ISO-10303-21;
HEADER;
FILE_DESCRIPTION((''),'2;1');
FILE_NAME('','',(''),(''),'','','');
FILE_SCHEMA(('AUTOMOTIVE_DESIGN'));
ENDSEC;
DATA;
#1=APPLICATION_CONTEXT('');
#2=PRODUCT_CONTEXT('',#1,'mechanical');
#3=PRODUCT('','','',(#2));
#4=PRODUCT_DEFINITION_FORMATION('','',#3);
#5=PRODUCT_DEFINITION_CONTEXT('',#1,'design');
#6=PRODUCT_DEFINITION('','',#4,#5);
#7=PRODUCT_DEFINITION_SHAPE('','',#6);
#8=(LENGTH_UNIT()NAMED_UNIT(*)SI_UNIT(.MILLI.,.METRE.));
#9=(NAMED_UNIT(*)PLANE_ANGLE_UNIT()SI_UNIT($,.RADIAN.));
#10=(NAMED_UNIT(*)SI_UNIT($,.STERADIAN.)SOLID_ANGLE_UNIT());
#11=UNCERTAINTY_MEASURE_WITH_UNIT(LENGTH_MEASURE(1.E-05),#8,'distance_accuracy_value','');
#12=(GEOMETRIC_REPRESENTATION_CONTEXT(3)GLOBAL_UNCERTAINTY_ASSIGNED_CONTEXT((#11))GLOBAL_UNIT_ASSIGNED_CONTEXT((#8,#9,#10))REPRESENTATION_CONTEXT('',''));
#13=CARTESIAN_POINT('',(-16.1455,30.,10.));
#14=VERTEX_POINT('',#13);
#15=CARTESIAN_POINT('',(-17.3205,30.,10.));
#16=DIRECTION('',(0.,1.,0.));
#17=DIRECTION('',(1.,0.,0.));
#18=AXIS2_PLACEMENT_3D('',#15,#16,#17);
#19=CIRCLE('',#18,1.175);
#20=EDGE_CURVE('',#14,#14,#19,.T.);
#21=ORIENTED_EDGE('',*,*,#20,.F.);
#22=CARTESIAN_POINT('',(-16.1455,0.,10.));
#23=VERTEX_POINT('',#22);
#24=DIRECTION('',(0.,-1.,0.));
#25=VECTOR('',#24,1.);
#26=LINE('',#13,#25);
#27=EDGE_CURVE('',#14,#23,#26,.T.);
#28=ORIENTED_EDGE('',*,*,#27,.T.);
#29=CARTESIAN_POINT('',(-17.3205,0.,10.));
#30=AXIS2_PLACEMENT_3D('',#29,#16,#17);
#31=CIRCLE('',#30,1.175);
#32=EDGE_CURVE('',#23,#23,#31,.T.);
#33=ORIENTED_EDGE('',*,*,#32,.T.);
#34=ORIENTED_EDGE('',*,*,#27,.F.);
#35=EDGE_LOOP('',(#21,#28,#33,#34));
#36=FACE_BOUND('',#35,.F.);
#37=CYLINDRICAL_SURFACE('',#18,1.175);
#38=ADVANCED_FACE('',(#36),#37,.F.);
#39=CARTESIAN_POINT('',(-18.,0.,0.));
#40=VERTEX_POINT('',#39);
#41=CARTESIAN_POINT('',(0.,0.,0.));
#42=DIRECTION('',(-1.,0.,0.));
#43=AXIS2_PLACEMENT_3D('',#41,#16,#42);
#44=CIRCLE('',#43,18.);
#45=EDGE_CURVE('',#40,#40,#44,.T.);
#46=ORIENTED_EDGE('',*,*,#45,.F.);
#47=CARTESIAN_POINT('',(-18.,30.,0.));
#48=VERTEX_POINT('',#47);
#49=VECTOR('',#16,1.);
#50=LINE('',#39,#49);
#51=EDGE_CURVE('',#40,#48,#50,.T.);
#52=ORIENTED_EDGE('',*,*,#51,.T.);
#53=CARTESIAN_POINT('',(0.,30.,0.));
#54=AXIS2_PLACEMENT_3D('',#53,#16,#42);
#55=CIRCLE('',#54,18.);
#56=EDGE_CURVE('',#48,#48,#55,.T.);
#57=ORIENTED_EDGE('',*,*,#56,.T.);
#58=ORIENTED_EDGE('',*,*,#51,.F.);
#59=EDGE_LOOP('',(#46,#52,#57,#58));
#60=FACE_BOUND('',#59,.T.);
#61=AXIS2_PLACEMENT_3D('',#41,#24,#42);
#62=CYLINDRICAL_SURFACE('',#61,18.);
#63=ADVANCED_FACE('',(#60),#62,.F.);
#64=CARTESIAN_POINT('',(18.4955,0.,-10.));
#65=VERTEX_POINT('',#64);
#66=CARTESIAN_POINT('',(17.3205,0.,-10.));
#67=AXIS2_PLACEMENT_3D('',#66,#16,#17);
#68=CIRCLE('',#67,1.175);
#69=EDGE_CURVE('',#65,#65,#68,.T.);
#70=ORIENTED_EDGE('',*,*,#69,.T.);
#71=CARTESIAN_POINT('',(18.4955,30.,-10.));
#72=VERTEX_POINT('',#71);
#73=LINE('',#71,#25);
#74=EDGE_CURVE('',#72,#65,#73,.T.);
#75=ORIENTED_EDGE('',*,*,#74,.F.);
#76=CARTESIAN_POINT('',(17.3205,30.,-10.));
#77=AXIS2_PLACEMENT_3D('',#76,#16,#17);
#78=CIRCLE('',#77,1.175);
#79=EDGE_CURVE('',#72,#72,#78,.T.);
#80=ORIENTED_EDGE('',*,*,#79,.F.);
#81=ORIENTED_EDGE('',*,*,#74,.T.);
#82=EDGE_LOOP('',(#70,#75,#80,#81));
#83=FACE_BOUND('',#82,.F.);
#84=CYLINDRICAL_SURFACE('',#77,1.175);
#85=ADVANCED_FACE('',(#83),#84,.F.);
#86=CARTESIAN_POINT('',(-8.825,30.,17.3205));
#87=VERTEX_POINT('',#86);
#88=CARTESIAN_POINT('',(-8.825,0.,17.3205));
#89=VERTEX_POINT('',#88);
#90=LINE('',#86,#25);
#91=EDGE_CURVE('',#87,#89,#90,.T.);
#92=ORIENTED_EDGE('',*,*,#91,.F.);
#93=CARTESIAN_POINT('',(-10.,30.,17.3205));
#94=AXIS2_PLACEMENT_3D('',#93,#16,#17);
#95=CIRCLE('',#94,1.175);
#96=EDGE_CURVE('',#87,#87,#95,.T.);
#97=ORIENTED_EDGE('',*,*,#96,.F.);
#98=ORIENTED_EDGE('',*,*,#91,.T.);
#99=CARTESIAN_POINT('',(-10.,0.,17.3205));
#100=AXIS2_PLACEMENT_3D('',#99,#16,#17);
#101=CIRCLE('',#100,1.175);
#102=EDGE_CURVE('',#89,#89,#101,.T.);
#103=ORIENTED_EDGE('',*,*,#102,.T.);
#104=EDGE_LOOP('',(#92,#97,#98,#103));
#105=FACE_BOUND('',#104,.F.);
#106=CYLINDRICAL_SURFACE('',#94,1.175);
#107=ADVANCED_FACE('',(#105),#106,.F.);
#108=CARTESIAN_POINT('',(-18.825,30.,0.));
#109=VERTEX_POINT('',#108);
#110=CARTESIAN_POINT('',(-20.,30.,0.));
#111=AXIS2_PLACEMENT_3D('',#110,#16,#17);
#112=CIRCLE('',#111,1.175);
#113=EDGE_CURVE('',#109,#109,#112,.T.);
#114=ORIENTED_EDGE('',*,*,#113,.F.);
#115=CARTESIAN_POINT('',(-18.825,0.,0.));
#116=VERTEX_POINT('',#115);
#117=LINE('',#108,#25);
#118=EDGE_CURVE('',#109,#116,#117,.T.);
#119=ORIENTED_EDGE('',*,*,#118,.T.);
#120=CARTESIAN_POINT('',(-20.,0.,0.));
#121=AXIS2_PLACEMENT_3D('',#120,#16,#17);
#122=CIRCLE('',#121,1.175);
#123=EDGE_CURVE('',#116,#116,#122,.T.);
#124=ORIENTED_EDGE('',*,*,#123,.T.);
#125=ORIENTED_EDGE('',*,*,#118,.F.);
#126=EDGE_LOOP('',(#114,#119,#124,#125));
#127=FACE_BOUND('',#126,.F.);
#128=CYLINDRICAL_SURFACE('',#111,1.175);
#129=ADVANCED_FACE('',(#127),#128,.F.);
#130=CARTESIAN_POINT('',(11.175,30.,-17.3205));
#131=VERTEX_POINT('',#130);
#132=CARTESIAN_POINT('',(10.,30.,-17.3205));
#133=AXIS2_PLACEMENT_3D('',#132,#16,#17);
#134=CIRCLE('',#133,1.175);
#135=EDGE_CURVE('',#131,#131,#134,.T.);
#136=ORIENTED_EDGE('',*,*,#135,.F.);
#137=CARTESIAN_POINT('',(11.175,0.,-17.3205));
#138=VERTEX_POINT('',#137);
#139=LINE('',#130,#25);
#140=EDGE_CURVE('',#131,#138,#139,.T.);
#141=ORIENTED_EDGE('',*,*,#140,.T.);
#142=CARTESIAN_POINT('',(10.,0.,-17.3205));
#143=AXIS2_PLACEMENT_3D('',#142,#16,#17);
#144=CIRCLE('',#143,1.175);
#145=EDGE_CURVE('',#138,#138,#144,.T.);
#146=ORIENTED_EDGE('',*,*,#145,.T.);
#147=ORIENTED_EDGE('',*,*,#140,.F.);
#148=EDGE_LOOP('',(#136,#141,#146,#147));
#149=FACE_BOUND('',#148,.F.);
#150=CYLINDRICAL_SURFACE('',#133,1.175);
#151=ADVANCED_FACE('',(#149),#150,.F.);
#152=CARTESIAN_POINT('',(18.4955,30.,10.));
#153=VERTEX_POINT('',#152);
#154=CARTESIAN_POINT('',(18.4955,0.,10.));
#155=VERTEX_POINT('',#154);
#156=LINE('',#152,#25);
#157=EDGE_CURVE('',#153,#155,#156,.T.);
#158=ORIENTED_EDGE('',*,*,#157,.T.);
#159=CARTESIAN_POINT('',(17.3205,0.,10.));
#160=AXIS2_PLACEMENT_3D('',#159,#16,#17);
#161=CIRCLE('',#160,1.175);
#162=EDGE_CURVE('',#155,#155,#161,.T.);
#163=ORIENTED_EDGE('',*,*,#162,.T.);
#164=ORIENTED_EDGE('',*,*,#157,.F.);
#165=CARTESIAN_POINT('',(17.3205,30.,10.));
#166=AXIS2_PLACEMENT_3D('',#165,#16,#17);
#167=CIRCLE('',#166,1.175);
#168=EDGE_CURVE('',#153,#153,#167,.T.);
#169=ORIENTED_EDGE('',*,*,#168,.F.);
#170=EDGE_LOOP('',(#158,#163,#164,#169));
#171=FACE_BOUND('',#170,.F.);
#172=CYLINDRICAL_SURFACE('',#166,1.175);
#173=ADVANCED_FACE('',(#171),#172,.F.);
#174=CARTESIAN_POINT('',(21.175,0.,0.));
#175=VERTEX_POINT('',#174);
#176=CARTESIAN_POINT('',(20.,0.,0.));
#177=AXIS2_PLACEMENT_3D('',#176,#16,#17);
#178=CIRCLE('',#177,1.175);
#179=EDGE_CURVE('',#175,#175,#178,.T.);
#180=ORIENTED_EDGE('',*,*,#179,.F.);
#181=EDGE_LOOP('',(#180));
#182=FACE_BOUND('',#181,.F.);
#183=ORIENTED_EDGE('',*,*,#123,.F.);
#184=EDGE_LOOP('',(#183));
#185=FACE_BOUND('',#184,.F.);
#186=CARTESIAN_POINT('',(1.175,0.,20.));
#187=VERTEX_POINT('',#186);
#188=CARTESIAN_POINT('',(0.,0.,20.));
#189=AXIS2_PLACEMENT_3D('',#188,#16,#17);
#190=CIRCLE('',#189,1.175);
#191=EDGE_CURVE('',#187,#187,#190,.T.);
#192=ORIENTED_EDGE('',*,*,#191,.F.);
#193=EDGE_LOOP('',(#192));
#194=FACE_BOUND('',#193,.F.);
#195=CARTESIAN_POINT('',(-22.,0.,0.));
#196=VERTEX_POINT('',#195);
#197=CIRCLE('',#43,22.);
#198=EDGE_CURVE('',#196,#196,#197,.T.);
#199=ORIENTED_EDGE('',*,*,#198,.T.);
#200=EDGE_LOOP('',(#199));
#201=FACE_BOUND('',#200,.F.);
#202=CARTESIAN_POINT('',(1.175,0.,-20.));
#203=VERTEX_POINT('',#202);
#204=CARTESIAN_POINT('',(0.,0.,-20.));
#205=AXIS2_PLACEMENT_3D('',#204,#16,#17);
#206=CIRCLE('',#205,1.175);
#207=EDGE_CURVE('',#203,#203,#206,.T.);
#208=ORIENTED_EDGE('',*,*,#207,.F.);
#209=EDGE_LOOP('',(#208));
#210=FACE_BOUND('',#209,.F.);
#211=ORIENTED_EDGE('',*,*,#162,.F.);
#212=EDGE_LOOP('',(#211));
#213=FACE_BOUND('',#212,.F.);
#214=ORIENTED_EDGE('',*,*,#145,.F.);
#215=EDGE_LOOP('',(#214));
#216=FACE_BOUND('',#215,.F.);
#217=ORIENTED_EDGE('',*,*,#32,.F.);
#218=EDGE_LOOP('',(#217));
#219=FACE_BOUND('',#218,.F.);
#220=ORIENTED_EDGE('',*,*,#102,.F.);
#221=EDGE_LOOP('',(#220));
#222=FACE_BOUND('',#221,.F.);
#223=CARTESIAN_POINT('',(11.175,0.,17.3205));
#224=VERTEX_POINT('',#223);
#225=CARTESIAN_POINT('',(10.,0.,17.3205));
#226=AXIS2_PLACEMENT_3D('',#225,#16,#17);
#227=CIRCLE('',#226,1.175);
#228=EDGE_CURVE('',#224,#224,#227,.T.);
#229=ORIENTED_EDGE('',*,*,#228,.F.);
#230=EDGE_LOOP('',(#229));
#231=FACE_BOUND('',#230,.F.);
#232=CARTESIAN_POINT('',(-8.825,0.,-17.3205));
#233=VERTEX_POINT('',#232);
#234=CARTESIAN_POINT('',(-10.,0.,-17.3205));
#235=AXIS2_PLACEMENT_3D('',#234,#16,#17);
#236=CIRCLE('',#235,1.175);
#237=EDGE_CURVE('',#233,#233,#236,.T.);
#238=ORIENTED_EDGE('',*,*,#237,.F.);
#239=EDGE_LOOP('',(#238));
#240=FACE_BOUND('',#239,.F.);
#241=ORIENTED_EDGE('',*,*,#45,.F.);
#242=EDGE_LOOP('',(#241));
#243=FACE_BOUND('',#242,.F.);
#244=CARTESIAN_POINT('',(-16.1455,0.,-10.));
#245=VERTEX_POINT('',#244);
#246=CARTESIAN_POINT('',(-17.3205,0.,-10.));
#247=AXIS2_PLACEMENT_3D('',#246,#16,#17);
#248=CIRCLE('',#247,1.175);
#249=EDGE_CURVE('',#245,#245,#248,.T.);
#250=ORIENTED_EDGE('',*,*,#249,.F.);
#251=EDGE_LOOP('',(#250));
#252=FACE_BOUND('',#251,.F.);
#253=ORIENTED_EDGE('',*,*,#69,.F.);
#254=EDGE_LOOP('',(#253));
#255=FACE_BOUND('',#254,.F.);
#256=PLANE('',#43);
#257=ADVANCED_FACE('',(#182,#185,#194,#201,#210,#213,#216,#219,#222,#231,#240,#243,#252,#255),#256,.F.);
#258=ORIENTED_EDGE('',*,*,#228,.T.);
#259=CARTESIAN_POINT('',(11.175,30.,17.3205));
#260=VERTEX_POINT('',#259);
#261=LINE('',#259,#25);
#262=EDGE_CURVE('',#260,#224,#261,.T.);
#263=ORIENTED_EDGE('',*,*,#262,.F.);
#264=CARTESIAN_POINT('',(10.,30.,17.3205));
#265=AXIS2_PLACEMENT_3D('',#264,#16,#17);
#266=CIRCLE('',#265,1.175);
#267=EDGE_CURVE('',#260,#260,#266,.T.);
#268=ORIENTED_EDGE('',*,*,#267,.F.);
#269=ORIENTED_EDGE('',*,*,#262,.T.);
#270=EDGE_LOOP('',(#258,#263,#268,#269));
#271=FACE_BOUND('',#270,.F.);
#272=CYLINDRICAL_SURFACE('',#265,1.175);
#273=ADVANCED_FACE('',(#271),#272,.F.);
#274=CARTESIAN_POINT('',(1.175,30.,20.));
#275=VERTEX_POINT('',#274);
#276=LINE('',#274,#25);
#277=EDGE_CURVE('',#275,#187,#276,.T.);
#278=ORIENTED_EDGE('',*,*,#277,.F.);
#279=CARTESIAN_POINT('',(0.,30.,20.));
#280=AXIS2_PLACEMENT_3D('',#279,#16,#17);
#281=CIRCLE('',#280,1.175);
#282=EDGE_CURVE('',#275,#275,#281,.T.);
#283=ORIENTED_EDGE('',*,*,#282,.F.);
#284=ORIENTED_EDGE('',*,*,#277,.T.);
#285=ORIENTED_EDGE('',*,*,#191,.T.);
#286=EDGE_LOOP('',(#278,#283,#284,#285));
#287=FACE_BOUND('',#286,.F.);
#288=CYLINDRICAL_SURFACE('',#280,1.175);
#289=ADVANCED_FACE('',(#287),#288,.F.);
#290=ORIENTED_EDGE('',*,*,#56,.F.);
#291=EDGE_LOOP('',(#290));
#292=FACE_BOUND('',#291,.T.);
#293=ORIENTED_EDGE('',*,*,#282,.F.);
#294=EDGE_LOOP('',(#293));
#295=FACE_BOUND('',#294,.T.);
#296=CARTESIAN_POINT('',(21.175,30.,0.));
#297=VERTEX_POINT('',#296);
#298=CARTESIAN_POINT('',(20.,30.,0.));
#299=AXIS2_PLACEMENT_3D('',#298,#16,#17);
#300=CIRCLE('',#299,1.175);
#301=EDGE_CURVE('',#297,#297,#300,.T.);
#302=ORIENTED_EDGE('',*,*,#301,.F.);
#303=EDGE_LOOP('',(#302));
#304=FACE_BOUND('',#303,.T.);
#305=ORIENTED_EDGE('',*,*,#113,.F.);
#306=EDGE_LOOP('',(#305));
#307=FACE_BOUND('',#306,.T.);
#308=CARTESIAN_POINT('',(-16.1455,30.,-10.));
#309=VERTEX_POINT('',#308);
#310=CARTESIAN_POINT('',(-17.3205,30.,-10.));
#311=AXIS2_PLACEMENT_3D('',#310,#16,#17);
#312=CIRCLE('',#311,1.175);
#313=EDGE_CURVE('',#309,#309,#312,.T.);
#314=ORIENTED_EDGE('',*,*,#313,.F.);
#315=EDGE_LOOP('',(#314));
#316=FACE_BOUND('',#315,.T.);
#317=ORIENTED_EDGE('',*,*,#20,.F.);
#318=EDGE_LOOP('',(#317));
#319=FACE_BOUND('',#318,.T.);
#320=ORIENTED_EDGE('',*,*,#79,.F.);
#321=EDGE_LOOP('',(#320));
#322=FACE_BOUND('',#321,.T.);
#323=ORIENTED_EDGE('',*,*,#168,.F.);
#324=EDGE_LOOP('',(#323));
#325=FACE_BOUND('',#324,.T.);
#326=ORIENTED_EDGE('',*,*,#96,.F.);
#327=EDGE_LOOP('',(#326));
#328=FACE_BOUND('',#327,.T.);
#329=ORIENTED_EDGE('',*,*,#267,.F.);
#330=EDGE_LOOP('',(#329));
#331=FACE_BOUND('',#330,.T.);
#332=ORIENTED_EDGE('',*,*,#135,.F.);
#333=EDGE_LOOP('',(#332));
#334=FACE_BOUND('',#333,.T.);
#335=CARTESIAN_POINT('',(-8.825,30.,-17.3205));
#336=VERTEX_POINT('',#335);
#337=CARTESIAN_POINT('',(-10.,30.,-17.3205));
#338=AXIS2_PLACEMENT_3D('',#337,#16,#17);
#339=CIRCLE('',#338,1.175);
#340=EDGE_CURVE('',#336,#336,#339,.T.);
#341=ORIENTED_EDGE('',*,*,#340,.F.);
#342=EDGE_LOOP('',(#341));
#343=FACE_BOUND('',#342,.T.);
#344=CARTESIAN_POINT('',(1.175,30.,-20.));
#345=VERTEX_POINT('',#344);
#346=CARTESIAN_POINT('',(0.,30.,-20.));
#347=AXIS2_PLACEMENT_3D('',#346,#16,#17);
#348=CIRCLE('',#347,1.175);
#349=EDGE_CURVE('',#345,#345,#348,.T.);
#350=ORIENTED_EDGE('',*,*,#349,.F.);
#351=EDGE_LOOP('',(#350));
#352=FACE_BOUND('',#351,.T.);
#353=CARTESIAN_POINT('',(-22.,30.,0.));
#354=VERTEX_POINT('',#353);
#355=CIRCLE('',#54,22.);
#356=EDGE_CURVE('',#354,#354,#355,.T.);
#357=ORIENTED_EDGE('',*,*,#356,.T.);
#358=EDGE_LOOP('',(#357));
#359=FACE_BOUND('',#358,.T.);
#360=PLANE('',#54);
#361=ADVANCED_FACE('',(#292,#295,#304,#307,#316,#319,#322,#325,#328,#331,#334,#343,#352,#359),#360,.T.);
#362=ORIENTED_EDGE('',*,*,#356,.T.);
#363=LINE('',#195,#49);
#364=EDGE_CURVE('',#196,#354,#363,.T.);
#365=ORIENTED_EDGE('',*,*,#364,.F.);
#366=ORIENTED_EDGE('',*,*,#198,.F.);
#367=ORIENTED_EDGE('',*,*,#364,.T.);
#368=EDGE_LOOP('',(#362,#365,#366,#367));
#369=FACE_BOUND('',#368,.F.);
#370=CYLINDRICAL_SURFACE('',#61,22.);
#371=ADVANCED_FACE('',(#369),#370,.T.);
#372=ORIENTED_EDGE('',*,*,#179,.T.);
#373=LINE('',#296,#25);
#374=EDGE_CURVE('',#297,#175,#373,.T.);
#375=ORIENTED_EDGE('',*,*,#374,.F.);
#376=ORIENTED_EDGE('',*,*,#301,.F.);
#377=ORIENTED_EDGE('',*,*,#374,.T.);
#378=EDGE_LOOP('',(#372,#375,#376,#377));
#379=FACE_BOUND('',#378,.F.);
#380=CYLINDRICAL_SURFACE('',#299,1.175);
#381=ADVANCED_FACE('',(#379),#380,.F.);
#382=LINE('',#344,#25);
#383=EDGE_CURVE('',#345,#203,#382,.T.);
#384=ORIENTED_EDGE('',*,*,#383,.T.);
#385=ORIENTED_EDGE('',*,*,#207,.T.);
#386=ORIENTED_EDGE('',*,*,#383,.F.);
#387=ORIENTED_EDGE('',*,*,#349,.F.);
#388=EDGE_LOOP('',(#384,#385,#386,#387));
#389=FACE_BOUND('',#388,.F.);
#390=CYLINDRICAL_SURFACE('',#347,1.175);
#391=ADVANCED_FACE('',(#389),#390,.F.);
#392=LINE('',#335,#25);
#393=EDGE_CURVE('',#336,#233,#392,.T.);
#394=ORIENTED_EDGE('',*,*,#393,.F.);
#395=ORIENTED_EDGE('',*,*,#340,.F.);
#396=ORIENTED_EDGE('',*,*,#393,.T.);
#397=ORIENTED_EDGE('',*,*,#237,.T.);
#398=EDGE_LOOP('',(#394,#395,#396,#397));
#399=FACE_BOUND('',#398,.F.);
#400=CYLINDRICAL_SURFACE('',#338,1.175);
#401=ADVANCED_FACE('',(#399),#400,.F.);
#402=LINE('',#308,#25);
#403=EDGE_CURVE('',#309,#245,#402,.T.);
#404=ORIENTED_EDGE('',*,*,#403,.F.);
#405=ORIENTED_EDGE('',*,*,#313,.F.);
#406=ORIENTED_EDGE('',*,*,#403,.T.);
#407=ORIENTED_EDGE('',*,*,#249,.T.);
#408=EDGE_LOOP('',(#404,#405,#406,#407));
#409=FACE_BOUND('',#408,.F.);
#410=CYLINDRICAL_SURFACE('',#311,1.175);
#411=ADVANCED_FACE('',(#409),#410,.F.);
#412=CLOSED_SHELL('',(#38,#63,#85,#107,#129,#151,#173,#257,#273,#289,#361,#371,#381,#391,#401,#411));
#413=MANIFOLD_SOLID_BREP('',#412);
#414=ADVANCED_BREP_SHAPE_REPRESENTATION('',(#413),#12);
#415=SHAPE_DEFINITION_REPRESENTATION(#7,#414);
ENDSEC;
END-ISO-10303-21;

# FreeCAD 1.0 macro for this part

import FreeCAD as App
import Part
import Sketcher
from FreeCAD import Vector
Q = App.Units.Quantity

doc = App.newDocument("Part")
params = doc.addObject("Spreadsheet::Sheet", "Params")
for row, (alias, value) in enumerate([
    ("sketch1_diameter", "44 mm"),
    ("sketch1_diameter2", "36 mm"),
    ("pad1_length", "30 mm"),
    ("sketch2_diameter", "2.35 mm"),
], start=1):
    params.set(f"A{row}", alias)
    params.set(f"B{row}", "=" + value)
    params.setAlias(f"B{row}", alias)

body = doc.addObject("PartDesign::Body", "Body")

# Sketch on XZ plane
sketch1 = body.newObject("Sketcher::SketchObject", "Sketch")
sketch1.AttachmentSupport = (doc.getObject("XZ_Plane"), [""])
sketch1.MapMode = "FlatFace"
sketch1.addGeometry([
    Part.Circle(Vector(0, 0, 0), Vector(0, 0, 1), 22),
    Part.Circle(Vector(0, 0, 0), Vector(0, 0, 1), 18),
], False)
sketch1.addConstraint([
    Sketcher.Constraint("Coincident", 0, 3, -1, 1),
    Sketcher.Constraint("Coincident", 1, 3, -1, 1),
    Sketcher.Constraint("Diameter", 0, Q("44 mm")),
    Sketcher.Constraint("Diameter", 1, Q("36 mm")),
])
sketch1.setExpression("Constraints[2]", "Params.sketch1_diameter")
sketch1.setExpression("Constraints[3]", "Params.sketch1_diameter2")
pad1 = body.newObject("PartDesign::Pad", "Pad")
pad1.Profile = sketch1
pad1.setExpression("Length", "Params.pad1_length")
pad1.Reversed = True

# Sketch on XZ plane
sketch2 = body.newObject("Sketcher::SketchObject", "Sketch001")
sketch2.AttachmentSupport = (doc.getObject("XZ_Plane"), [""])
sketch2.MapMode = "FlatFace"
sketch2.AttachmentOffset = App.Placement(Vector(0, 0, -30), App.Rotation())
sketch2.addGeometry([
    Part.Circle(Vector(-20, 0, 0), Vector(0, 0, 1), 1.175),  # 0
    Part.Circle(Vector(-17.3205, 10, 0), Vector(0, 0, 1), 1.175),  # 1
    Part.Circle(Vector(-10, 17.3205, 0), Vector(0, 0, 1), 1.175),  # 2
    Part.Circle(Vector(0, 20, 0), Vector(0, 0, 1), 1.175),  # 3
    Part.Circle(Vector(10, 17.3205, 0), Vector(0, 0, 1), 1.175),  # 4
    Part.Circle(Vector(17.3205, 10, 0), Vector(0, 0, 1), 1.175),  # 5
    Part.Circle(Vector(20, 0, 0), Vector(0, 0, 1), 1.175),  # 6
    Part.Circle(Vector(17.3205, -10, 0), Vector(0, 0, 1), 1.175),  # 7
    Part.Circle(Vector(10, -17.3205, 0), Vector(0, 0, 1), 1.175),  # 8
    Part.Circle(Vector(0, -20, 0), Vector(0, 0, 1), 1.175),  # 9
    Part.Circle(Vector(-10, -17.3205, 0), Vector(0, 0, 1), 1.175),  # 10
    Part.Circle(Vector(-17.3205, -10, 0), Vector(0, 0, 1), 1.175),  # 11
], False)
sketch2.addConstraint([
    Sketcher.Constraint("Equal", 0, 1),
    Sketcher.Constraint("Equal", 1, 2),
    Sketcher.Constraint("Equal", 2, 3),
    Sketcher.Constraint("Equal", 3, 4),
    Sketcher.Constraint("Equal", 4, 5),
    Sketcher.Constraint("Equal", 5, 6),
    Sketcher.Constraint("Equal", 6, 7),
    Sketcher.Constraint("Equal", 7, 8),
    Sketcher.Constraint("Equal", 8, 9),
    Sketcher.Constraint("Equal", 9, 10),
    Sketcher.Constraint("Equal", 10, 11),
    Sketcher.Constraint("Symmetric", 0, 3, 6, 3, -1, 1),
    Sketcher.Constraint("Symmetric", 1, 3, 7, 3, -1, 1),
    Sketcher.Constraint("Symmetric", 2, 3, 8, 3, -1, 1),
    Sketcher.Constraint("Symmetric", 3, 3, 9, 3, -1, 1),
    Sketcher.Constraint("Symmetric", 4, 3, 10, 3, -1, 1),
    Sketcher.Constraint("Symmetric", 5, 3, 11, 3, -1, 1),
    Sketcher.Constraint("Symmetric", 2, 3, 4, 3, -2),
    Sketcher.Constraint("Symmetric", 1, 3, 5, 3, -2),
    Sketcher.Constraint("PointOnObject", 0, 3, -1),
    Sketcher.Constraint("PointOnObject", 3, 3, -2),
    Sketcher.Constraint("Diameter", 0, Q("2.35 mm")),
    Sketcher.Constraint("DistanceX", 0, 3, -1, 1, Q("20 mm")),
    Sketcher.Constraint("DistanceY", -1, 1, 3, 3, Q("20 mm")),
    Sketcher.Constraint("DistanceX", 2, 3, 4, 3, Q("20 mm")),
    Sketcher.Constraint("DistanceY", 7, 3, 5, 3, Q("20 mm")),
    Sketcher.Constraint("DistanceX", 1, 3, 5, 3, Q("34.641 mm")),
    Sketcher.Constraint("DistanceY", 8, 3, 4, 3, Q("34.641 mm")),
])
sketch2.setExpression("Constraints[21]", "Params.sketch2_diameter")
pocket1 = body.newObject("PartDesign::Pocket", "Pocket")
pocket1.Profile = sketch2
pocket1.Type = "ThroughAll"
pocket1.Reversed = True

doc.recompute()
